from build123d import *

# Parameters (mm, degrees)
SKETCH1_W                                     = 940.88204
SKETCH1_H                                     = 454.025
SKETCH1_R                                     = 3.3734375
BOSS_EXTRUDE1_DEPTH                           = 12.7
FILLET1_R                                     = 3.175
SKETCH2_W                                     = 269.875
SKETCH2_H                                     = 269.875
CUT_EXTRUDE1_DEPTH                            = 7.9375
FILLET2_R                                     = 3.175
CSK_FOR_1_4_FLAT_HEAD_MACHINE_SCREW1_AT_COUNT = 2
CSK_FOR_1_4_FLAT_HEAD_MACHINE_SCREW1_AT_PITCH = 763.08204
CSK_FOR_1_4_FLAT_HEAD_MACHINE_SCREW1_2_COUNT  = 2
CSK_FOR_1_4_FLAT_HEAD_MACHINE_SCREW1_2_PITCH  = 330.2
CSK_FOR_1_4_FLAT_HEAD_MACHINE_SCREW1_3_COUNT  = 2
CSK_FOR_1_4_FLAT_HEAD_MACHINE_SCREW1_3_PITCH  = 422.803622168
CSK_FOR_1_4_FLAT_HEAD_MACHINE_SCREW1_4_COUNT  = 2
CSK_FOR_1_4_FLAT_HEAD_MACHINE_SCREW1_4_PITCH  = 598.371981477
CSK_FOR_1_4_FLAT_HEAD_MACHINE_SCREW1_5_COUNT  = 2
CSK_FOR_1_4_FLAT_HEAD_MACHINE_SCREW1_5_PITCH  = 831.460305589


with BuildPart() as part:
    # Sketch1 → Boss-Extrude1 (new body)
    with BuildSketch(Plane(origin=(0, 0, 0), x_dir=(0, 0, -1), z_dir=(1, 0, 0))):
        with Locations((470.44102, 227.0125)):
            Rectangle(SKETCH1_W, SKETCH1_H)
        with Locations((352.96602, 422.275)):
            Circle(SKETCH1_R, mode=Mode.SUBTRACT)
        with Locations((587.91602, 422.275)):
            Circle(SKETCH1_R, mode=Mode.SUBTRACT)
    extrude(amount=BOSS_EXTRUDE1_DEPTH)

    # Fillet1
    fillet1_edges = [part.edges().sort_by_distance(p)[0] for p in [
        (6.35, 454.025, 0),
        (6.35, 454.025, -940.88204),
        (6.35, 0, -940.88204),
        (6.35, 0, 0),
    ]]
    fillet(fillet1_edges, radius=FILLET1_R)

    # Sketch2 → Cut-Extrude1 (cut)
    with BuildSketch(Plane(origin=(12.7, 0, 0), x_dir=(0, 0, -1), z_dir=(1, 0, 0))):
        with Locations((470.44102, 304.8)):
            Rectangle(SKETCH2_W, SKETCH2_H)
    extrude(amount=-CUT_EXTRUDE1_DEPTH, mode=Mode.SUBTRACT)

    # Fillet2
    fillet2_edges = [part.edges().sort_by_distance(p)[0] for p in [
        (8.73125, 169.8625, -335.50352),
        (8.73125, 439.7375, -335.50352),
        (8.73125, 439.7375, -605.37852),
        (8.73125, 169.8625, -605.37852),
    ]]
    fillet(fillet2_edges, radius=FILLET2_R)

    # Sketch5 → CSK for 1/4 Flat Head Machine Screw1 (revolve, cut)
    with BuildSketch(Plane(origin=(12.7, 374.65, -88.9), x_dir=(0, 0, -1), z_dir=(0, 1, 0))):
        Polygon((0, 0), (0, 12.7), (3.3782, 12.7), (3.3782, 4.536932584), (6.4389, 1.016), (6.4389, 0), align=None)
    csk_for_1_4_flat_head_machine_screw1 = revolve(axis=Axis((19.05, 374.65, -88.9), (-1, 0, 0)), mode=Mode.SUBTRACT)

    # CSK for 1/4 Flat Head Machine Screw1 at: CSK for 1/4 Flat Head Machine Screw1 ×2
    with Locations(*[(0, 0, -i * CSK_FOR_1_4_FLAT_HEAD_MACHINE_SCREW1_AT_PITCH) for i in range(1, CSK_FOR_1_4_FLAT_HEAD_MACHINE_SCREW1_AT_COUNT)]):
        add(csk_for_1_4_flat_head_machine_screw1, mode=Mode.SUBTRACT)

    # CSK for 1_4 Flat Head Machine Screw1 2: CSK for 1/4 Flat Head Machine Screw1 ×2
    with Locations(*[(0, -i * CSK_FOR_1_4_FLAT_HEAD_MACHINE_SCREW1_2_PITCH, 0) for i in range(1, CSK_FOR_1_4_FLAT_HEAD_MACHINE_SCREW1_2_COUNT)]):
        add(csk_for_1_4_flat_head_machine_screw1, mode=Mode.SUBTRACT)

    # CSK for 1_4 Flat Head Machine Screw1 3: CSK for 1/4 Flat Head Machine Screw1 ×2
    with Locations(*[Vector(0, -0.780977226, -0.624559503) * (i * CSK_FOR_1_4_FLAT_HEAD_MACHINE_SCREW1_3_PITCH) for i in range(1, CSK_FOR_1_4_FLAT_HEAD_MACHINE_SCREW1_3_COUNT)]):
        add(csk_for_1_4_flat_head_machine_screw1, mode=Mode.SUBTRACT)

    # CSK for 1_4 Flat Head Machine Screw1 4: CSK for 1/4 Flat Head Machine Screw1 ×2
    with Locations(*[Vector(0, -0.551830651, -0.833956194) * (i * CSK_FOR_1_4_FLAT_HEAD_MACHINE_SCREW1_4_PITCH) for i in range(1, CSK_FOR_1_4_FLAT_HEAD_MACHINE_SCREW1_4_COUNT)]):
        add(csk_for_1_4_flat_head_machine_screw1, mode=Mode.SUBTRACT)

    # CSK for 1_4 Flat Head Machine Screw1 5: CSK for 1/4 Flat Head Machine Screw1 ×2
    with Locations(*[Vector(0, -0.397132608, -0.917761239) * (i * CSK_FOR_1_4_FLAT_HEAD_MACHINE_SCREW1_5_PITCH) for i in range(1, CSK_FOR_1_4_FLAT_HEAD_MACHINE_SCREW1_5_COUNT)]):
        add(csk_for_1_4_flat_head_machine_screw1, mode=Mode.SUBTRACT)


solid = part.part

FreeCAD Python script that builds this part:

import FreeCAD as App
import Part
import Sketcher

V = App.Vector
Q = App.Units.Quantity


def edges_at(feature, points):
    """Names of the edges that pass closest to the given points."""
    edges = feature.Shape.Edges
    near = lambda p: min(range(len(edges)), key=lambda i: edges[i].distToShape(Part.Vertex(*p))[0])
    return sorted({f"Edge{near(p) + 1}" for p in points})


def add_polygon(sketch, points):
    """Adds a closed chain of lines whose ends are joined by coincident constraints."""
    first, n = sketch.GeometryCount, len(points)
    for a, b in zip(points, points[1:] + points[:1]):
        sketch.addGeometry(Part.LineSegment(App.Vector(*a, 0), App.Vector(*b, 0)), False)
    for i in range(n):
        sketch.addConstraint(Sketcher.Constraint("Coincident", first + i, 2, first + (i + 1) % n, 1))

doc = App.newDocument("Part")
body = doc.addObject("PartDesign::Body", "Body")

# Sketch on YZ plane
sketch1 = body.newObject("Sketcher::SketchObject", "Sketch")
sketch1.AttachmentSupport = (doc.getObject("YZ_Plane"), [""])
sketch1.MapMode = "FlatFace"
add_polygon(sketch1, [(454.025, 0), (0, 0), (0, -940.88204), (454.025, -940.88204)])  # lines 0-3
sketch1.addGeometry(Part.Circle(V(422.275, -352.96602, 0), V(0, 0, 1), 3.373438), False)  # 4
sketch1.addGeometry(Part.Circle(V(422.275, -587.91602, 0), V(0, 0, 1), 3.373438), False)  # 5
sketch1.addConstraint(Sketcher.Constraint("Horizontal", 0))
sketch1.addConstraint(Sketcher.Constraint("Vertical", 1))
sketch1.addConstraint(Sketcher.Constraint("Horizontal", 2))
sketch1.addConstraint(Sketcher.Constraint("Vertical", 3))
sketch1.addConstraint(Sketcher.Constraint("Coincident", 0, 2, -1, 1))
sketch1.addConstraint(Sketcher.Constraint("Equal", 4, 5))
sketch1.addConstraint(Sketcher.Constraint("Vertical", 4, 3, 5, 3))
sketch1.addConstraint(Sketcher.Constraint("Diameter", 4, Q("0.265625 in")))
sketch1.addConstraint(Sketcher.Constraint("DistanceX", 0, 2, 0, 1, Q("17.875 in")))
sketch1.addConstraint(Sketcher.Constraint("DistanceY", 5, 3, 4, 3, Q("9.25 in")))
sketch1.addConstraint(Sketcher.Constraint("DistanceX", 5, 3, 2, 2, Q("1.25 in")))
sketch1.addConstraint(Sketcher.Constraint("DistanceY", 1, 2, 1, 1, Q("37.0426 in")))
sketch1.addConstraint(Sketcher.Constraint("DistanceY", 4, 3, -1, 1, Q("13.8963 in")))
pad1 = body.newObject("PartDesign::Pad", "Pad")
pad1.Profile = sketch1
pad1.Length = Q("0.5 in")
doc.recompute()

fillet = body.newObject("PartDesign::Fillet", "Fillet")
fillet.Base = (pad1, edges_at(pad1, [
    (6.35, 454.025, 0),
    (6.35, 454.025, -940.882),
    (6.35, 0, -940.882),
    (6.35, 0, 0),
]))
fillet.Radius = Q("0.125 in")

# Sketch on YZ plane
sketch2 = body.newObject("Sketcher::SketchObject", "Sketch001")
sketch2.AttachmentSupport = (doc.getObject("YZ_Plane"), [""])
sketch2.MapMode = "FlatFace"
sketch2.AttachmentOffset = App.Placement(V(0, 0, 0.5 * 25.4), App.Rotation())
add_polygon(sketch2, [(439.7375, -335.50352), (169.8625, -335.50352), (169.8625, -605.37852), (439.7375, -605.37852)])  # lines 0-3
sketch2.addConstraint(Sketcher.Constraint("Horizontal", 0))
sketch2.addConstraint(Sketcher.Constraint("Vertical", 1))
sketch2.addConstraint(Sketcher.Constraint("Horizontal", 2))
sketch2.addConstraint(Sketcher.Constraint("Vertical", 3))
sketch2.addConstraint(Sketcher.Constraint("Equal", 2, 1))
sketch2.addConstraint(Sketcher.Constraint("DistanceX", 0, 2, 0, 1, Q("10.625 in")))
sketch2.addConstraint(Sketcher.Constraint("DistanceX", -1, 1, 0, 2, Q("6.6875 in")))
sketch2.addConstraint(Sketcher.Constraint("DistanceY", 0, 2, -1, 1, Q("13.2088 in")))
pocket1 = body.newObject("PartDesign::Pocket", "Pocket")
pocket1.Profile = sketch2
pocket1.Length = Q("0.3125 in")
doc.recompute()

fillet2 = body.newObject("PartDesign::Fillet", "Fillet001")
fillet2.Base = (pocket1, edges_at(pocket1, [
    (8.731, 169.863, -335.504),
    (8.731, 439.738, -335.504),
    (8.731, 439.738, -605.379),
    (8.731, 169.863, -605.379),
]))
fillet2.Radius = Q("0.125 in")

# Sketch on XZ plane
sketch3 = body.newObject("Sketcher::SketchObject", "Sketch002")
sketch3.AttachmentSupport = (doc.getObject("XZ_Plane"), [""])
sketch3.MapMode = "FlatFace"
sketch3.AttachmentOffset = App.Placement(V(0, 0, -14.75 * 25.4), App.Rotation())
add_polygon(sketch3, [(0, -88.9), (12.7, -88.9), (12.7, -95.3389), (11.684, -95.3389), (8.163067, -92.2782), (0, -92.2782)])  # lines 0-5
sketch3.addGeometry(Part.LineSegment(V(12.7, -88.9, 0), V(0, -88.9, 0)), True)  # axis
sketch3.addConstraint(Sketcher.Constraint("Horizontal", 0))
sketch3.addConstraint(Sketcher.Constraint("Vertical", 1))
sketch3.addConstraint(Sketcher.Constraint("Horizontal", 2))
sketch3.addConstraint(Sketcher.Constraint("Horizontal", 4))
sketch3.addConstraint(Sketcher.Constraint("Vertical", 5))
sketch3.addConstraint(Sketcher.Constraint("Horizontal", 6))
sketch3.addConstraint(Sketcher.Constraint("Coincident", 6, 1, 0, 2))
sketch3.addConstraint(Sketcher.Constraint("PointOnObject", 4, 2, -2))
sketch3.addConstraint(Sketcher.Constraint("PointOnObject", 6, 2, -2))
sketch3.addConstraint(Sketcher.Constraint("DistanceX", 0, 1, 0, 2, Q("0.5 in")))
sketch3.addConstraint(Sketcher.Constraint("Angle", 3, Q("139 deg")))
sketch3.addConstraint(Sketcher.Constraint("DistanceX", 2, 2, 2, 1, Q("0.04 in")))
sketch3.addConstraint(Sketcher.Constraint("DistanceY", 0, 2, -1, 1, Q("3.5 in")))
sketch3.addConstraint(Sketcher.Constraint("DistanceY", 5, 1, 5, 2, Q("0.133 in")))
sketch3.addConstraint(Sketcher.Constraint("DistanceY", 1, 2, 1, 1, Q("0.2535 in")))
groove = body.newObject("PartDesign::Groove", "Groove")
groove.Profile = sketch3
groove.ReferenceAxis = (sketch3, ["Axis0"])
groove.Angle = 360
doc.recompute()

linearpattern = body.newObject("PartDesign::LinearPattern", "LinearPattern")
linearpattern.Originals = [groove]
linearpattern.Direction = (doc.getObject("Z_Axis"), [""])
linearpattern.Mode = "offset"
linearpattern.Offset = Q("30.0426 in")
linearpattern.Occurrences = 2
linearpattern.Reversed = True
body.Tip = linearpattern
doc.recompute()

linearpattern2 = body.newObject("PartDesign::LinearPattern", "LinearPattern001")
linearpattern2.Originals = [groove]
linearpattern2.Direction = (doc.getObject("Y_Axis"), [""])
linearpattern2.Mode = "offset"
linearpattern2.Offset = Q("13 in")
linearpattern2.Occurrences = 2
linearpattern2.Reversed = True
body.Tip = linearpattern2
doc.recompute()

datumline = body.newObject("PartDesign::Line", "DatumLine")
datumline.Placement = App.Placement(V(0, 0, 0), App.Rotation(V(0, 0, 1), V(0, -0.780977226, -0.624559503)))
linearpattern3 = body.newObject("PartDesign::LinearPattern", "LinearPattern002")
linearpattern3.Originals = [groove]
linearpattern3.Direction = (datumline, [""])
linearpattern3.Mode = "offset"
linearpattern3.Offset = 422.803622
linearpattern3.Occurrences = 2
body.Tip = linearpattern3
doc.recompute()

datumline2 = body.newObject("PartDesign::Line", "DatumLine001")
datumline2.Placement = App.Placement(V(0, 0, 0), App.Rotation(V(0, 0, 1), V(0, -0.551830651, -0.833956194)))
linearpattern4 = body.newObject("PartDesign::LinearPattern", "LinearPattern003")
linearpattern4.Originals = [groove]
linearpattern4.Direction = (datumline2, [""])
linearpattern4.Mode = "offset"
linearpattern4.Offset = 598.371982
linearpattern4.Occurrences = 2
body.Tip = linearpattern4
doc.recompute()

datumline3 = body.newObject("PartDesign::Line", "DatumLine002")
datumline3.Placement = App.Placement(V(0, 0, 0), App.Rotation(V(0, 0, 1), V(0, -0.397132608, -0.917761239)))
linearpattern5 = body.newObject("PartDesign::LinearPattern", "LinearPattern004")
linearpattern5.Originals = [groove]
linearpattern5.Direction = (datumline3, [""])
linearpattern5.Mode = "offset"
linearpattern5.Offset = 831.460306
linearpattern5.Occurrences = 2
body.Tip = linearpattern5

doc.recompute()
